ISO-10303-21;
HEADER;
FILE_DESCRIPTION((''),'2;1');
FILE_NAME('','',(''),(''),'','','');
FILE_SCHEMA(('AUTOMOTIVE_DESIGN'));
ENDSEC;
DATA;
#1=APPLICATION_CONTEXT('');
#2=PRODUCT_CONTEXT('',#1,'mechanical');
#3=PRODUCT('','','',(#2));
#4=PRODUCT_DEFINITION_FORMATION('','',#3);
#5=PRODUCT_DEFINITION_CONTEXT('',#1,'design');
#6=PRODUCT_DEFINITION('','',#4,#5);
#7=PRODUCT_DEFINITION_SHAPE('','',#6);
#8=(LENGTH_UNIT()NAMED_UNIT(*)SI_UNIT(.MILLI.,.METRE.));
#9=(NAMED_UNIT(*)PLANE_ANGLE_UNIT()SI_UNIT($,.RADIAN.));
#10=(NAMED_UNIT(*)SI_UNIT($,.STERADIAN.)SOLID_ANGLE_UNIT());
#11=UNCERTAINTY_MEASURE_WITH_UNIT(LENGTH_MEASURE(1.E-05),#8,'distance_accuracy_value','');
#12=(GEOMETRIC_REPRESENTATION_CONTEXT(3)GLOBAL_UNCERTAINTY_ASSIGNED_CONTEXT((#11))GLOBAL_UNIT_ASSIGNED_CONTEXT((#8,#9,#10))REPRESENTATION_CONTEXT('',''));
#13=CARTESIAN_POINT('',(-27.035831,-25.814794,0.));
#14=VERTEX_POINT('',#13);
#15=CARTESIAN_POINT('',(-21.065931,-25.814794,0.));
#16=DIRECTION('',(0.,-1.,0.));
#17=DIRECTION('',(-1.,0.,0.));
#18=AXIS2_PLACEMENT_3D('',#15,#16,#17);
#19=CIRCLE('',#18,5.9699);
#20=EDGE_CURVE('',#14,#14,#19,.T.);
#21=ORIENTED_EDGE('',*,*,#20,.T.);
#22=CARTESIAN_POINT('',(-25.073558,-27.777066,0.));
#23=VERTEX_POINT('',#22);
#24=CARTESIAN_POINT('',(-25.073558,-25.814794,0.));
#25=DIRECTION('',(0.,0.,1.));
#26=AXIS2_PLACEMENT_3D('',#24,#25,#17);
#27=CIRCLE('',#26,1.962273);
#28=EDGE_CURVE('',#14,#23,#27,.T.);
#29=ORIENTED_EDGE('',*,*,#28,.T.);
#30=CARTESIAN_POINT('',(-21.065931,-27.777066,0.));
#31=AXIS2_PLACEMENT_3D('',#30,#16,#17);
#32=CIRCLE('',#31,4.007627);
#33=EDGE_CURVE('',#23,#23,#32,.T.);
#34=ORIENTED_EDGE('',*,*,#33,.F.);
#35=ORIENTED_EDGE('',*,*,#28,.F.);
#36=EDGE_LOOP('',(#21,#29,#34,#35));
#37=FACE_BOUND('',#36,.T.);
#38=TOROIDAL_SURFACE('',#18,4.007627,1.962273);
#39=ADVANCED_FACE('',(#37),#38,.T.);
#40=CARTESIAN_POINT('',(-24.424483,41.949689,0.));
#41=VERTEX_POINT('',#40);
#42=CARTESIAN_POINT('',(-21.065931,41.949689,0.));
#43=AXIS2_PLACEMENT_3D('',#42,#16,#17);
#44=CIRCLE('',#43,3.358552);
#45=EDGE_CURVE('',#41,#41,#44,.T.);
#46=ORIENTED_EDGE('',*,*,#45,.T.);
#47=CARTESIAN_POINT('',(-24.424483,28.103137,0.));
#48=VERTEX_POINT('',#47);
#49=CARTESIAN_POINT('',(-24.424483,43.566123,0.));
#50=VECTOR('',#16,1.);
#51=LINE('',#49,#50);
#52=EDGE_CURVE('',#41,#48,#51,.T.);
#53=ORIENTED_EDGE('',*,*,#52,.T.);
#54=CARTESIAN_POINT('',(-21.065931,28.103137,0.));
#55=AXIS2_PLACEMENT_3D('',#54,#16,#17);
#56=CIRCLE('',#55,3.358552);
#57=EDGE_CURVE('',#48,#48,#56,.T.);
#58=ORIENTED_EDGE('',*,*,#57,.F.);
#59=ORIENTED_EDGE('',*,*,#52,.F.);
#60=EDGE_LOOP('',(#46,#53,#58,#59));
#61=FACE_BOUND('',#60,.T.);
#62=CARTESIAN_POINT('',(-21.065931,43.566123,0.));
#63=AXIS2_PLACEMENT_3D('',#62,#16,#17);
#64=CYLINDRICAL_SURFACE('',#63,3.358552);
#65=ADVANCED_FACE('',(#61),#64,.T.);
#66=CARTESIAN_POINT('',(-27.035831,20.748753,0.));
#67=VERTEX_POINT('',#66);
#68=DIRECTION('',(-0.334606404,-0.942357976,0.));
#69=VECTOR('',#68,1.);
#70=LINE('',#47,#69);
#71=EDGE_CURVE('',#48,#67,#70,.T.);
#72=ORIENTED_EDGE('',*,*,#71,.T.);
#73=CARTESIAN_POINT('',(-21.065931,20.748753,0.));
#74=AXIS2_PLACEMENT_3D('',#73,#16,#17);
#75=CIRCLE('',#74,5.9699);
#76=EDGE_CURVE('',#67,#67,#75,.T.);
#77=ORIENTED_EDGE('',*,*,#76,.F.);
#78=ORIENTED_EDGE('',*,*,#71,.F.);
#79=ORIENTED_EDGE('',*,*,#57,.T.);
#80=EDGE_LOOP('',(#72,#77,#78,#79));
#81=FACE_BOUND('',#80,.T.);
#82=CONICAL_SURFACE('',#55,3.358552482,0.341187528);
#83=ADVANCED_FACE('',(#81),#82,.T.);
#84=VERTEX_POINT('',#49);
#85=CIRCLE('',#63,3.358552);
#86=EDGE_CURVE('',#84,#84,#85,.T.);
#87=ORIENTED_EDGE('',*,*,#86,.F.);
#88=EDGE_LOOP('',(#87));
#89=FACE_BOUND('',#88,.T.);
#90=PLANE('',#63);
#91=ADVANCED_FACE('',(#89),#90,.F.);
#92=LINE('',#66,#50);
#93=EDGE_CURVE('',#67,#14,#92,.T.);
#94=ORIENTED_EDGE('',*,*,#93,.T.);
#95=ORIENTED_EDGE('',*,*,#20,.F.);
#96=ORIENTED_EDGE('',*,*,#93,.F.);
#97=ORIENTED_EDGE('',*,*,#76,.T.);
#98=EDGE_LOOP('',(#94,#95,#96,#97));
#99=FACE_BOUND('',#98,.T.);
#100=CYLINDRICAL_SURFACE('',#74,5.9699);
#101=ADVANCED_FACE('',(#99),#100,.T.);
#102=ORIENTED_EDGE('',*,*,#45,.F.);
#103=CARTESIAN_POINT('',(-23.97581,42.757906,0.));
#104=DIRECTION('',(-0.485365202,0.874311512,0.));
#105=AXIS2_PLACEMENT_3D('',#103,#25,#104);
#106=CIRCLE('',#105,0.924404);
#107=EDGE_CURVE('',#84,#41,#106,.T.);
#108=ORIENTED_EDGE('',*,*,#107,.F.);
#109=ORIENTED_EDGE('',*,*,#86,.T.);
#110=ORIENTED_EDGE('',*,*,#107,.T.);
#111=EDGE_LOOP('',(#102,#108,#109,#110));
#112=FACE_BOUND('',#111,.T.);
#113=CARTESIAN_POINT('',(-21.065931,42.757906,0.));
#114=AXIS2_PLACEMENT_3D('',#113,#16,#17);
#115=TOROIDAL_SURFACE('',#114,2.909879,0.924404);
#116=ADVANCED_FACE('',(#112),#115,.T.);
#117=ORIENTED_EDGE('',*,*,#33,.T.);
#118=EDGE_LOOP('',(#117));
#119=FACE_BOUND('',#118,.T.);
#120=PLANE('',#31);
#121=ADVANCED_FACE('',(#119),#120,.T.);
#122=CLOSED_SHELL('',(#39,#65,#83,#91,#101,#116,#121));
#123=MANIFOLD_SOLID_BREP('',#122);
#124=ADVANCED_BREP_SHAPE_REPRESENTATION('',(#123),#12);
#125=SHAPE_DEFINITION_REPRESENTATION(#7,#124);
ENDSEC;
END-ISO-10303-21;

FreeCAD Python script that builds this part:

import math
import FreeCAD as App
import Part
import Sketcher

V = App.Vector


def edges_at(feature, points):
    """Names of the edges that pass closest to the given points."""
    edges = feature.Shape.Edges
    near = lambda p: min(range(len(edges)), key=lambda i: edges[i].distToShape(Part.Vertex(*p))[0])
    return sorted({f"Edge{near(p) + 1}" for p in points})

doc = App.newDocument("Part")
body = doc.addObject("PartDesign::Body", "Body")

sketch1 = body.newObject("Sketcher::SketchObject", "Sketch")
sketch1.AttachmentSupport = (doc.getObject("XY_Plane"), [""])
sketch1.MapMode = "FlatFace"
sketch1.addGeometry(Part.LineSegment(V(-21.065931, -27.777066, 0), V(-21.065931, 43.566123, 0)), False)
sketch1.addGeometry(Part.LineSegment(V(-21.065931, 43.566123, 0), V(-24.424483, 43.566123, 0)), False)
sketch1.addGeometry(Part.ArcOfCircle(Part.Circle(V(-23.97581, 42.757906, 0), V(0, 0, 1), 0.924404), math.radians(119.036402), math.radians(240.963598)), False)
sketch1.addGeometry(Part.LineSegment(V(-24.424483, 41.949689, 0), V(-24.424483, 28.103137, 0)), False)
sketch1.addGeometry(Part.LineSegment(V(-24.424483, 28.103137, 0), V(-27.035831, 20.748753, 0)), False)
sketch1.addGeometry(Part.LineSegment(V(-27.035831, 20.748753, 0), V(-27.035831, -27.777066, 0)), False)
sketch1.addGeometry(Part.LineSegment(V(-27.035831, -27.777066, 0), V(-21.065931, -27.777066, 0)), False)
sketch1.addGeometry(Part.LineSegment(V(-21.065931, 43.566123, 0), V(-21.065931, -27.777066, 0)), True)
sketch1.addConstraint(Sketcher.Constraint("Coincident", 0, 2, 1, 1))
sketch1.addConstraint(Sketcher.Constraint("Coincident", 1, 2, 2, 1))
sketch1.addConstraint(Sketcher.Constraint("Coincident", 2, 2, 3, 1))
sketch1.addConstraint(Sketcher.Constraint("Coincident", 3, 2, 4, 1))
sketch1.addConstraint(Sketcher.Constraint("Coincident", 4, 2, 5, 1))
sketch1.addConstraint(Sketcher.Constraint("Coincident", 5, 2, 6, 1))
sketch1.addConstraint(Sketcher.Constraint("Coincident", 6, 2, 0, 1))
sketch1.addConstraint(Sketcher.Constraint("Vertical", 0))
sketch1.addConstraint(Sketcher.Constraint("Horizontal", 1))
sketch1.addConstraint(Sketcher.Constraint("Vertical", 3))
sketch1.addConstraint(Sketcher.Constraint("Vertical", 5))
sketch1.addConstraint(Sketcher.Constraint("Horizontal", 6))
sketch1.addConstraint(Sketcher.Constraint("Vertical", 7))
sketch1.addConstraint(Sketcher.Constraint("Coincident", 7, 1, 0, 2))
sketch1.addConstraint(Sketcher.Constraint("Horizontal", 5, 2, 7, 2))
sketch1.addConstraint(Sketcher.Constraint("Vertical", 1, 2, 2, 2))
sketch1.addConstraint(Sketcher.Constraint("DistanceX", 6, 1, 6, 2, 5.9699))
sketch1.addConstraint(Sketcher.Constraint("Radius", 2, 0.924404))
sketch1.addConstraint(Sketcher.Constraint("DistanceY", 0, 1, 0, 2, 71.343189))
sketch1.addConstraint(Sketcher.Constraint("DistanceY", 5, 2, 5, 1, 48.52582))
sketch1.addConstraint(Sketcher.Constraint("DistanceX", 1, 2, 1, 1, 3.358552))
sketch1.addConstraint(Sketcher.Constraint("DistanceY", 3, 2, 3, 1, 13.846552))
sketch1.addConstraint(Sketcher.Constraint("DistanceX", 2, 3, -1, 1, 23.97581))
sketch1.addConstraint(Sketcher.Constraint("DistanceX", 0, 2, -1, 1, 21.065931))
sketch1.addConstraint(Sketcher.Constraint("DistanceY", -1, 1, 2, 2, 41.949689))
revolution = body.newObject("PartDesign::Revolution", "Revolution")
revolution.Profile = sketch1
revolution.ReferenceAxis = (sketch1, ["Axis0"])
revolution.Angle = 360
doc.recompute()

fillet = body.newObject("PartDesign::Fillet", "Fillet")
fillet.Base = (revolution, edges_at(revolution, [(-15.096, -27.777, 0)]))
fillet.Radius = 1.962273

doc.recompute()
